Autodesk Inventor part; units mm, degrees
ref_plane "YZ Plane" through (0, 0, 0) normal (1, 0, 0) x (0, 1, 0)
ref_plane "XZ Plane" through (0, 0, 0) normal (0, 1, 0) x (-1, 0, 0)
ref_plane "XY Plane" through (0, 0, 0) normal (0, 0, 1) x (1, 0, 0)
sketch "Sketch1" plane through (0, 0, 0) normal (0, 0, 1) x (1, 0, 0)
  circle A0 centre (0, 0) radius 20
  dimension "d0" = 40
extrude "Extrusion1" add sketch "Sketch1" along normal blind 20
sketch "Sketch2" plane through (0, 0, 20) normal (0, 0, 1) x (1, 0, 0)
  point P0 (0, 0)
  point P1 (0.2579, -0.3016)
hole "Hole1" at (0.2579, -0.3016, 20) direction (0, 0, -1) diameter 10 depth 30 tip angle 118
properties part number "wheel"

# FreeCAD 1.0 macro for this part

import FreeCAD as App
import Part
import Sketcher

V = App.Vector

doc = App.newDocument("Part")
body = doc.addObject("PartDesign::Body", "Body")

# Sketch on XY plane
sketch1 = body.newObject("Sketcher::SketchObject", "Sketch")
sketch1.AttachmentSupport = (doc.getObject("XY_Plane"), [""])
sketch1.MapMode = "FlatFace"
sketch1.addGeometry(Part.Circle(V(0, 0, 0), V(0, 0, 1), 20), False)
sketch1.addConstraint(Sketcher.Constraint("Coincident", 0, 3, -1, 1))
sketch1.addConstraint(Sketcher.Constraint("Diameter", 0, 40.0))
pad1 = body.newObject("PartDesign::Pad", "Pad")
pad1.Profile = sketch1
pad1.Length = 20

# Sketch on XY plane
sketch2 = body.newObject("Sketcher::SketchObject", "Sketch001")
sketch2.AttachmentSupport = (doc.getObject("XY_Plane"), [""])
sketch2.MapMode = "FlatFace"
sketch2.AttachmentOffset = App.Placement(V(0, 0, 20), App.Rotation())
sketch2.addGeometry(Part.Circle(V(0, 0, 0), V(0, 0, 1), 5), False)
sketch2.addConstraint(Sketcher.Constraint("Diameter", 0, 10.0))
sketch2.addConstraint(Sketcher.Constraint("DistanceX", -1, 1, 0, 3, 0.258))
sketch2.addConstraint(Sketcher.Constraint("DistanceY", 0, 3, -1, 1, 0.3016))
doc.recompute()
hole = body.newObject("PartDesign::Hole", "Hole")
hole.Profile = sketch2
hole.ThreadType = "None"
hole.Diameter = 10
hole.DepthType = "Dimension"
hole.Depth = 30
hole.DrillPoint = "Angled"
hole.DrillPointAngle = 118

doc.recompute()
